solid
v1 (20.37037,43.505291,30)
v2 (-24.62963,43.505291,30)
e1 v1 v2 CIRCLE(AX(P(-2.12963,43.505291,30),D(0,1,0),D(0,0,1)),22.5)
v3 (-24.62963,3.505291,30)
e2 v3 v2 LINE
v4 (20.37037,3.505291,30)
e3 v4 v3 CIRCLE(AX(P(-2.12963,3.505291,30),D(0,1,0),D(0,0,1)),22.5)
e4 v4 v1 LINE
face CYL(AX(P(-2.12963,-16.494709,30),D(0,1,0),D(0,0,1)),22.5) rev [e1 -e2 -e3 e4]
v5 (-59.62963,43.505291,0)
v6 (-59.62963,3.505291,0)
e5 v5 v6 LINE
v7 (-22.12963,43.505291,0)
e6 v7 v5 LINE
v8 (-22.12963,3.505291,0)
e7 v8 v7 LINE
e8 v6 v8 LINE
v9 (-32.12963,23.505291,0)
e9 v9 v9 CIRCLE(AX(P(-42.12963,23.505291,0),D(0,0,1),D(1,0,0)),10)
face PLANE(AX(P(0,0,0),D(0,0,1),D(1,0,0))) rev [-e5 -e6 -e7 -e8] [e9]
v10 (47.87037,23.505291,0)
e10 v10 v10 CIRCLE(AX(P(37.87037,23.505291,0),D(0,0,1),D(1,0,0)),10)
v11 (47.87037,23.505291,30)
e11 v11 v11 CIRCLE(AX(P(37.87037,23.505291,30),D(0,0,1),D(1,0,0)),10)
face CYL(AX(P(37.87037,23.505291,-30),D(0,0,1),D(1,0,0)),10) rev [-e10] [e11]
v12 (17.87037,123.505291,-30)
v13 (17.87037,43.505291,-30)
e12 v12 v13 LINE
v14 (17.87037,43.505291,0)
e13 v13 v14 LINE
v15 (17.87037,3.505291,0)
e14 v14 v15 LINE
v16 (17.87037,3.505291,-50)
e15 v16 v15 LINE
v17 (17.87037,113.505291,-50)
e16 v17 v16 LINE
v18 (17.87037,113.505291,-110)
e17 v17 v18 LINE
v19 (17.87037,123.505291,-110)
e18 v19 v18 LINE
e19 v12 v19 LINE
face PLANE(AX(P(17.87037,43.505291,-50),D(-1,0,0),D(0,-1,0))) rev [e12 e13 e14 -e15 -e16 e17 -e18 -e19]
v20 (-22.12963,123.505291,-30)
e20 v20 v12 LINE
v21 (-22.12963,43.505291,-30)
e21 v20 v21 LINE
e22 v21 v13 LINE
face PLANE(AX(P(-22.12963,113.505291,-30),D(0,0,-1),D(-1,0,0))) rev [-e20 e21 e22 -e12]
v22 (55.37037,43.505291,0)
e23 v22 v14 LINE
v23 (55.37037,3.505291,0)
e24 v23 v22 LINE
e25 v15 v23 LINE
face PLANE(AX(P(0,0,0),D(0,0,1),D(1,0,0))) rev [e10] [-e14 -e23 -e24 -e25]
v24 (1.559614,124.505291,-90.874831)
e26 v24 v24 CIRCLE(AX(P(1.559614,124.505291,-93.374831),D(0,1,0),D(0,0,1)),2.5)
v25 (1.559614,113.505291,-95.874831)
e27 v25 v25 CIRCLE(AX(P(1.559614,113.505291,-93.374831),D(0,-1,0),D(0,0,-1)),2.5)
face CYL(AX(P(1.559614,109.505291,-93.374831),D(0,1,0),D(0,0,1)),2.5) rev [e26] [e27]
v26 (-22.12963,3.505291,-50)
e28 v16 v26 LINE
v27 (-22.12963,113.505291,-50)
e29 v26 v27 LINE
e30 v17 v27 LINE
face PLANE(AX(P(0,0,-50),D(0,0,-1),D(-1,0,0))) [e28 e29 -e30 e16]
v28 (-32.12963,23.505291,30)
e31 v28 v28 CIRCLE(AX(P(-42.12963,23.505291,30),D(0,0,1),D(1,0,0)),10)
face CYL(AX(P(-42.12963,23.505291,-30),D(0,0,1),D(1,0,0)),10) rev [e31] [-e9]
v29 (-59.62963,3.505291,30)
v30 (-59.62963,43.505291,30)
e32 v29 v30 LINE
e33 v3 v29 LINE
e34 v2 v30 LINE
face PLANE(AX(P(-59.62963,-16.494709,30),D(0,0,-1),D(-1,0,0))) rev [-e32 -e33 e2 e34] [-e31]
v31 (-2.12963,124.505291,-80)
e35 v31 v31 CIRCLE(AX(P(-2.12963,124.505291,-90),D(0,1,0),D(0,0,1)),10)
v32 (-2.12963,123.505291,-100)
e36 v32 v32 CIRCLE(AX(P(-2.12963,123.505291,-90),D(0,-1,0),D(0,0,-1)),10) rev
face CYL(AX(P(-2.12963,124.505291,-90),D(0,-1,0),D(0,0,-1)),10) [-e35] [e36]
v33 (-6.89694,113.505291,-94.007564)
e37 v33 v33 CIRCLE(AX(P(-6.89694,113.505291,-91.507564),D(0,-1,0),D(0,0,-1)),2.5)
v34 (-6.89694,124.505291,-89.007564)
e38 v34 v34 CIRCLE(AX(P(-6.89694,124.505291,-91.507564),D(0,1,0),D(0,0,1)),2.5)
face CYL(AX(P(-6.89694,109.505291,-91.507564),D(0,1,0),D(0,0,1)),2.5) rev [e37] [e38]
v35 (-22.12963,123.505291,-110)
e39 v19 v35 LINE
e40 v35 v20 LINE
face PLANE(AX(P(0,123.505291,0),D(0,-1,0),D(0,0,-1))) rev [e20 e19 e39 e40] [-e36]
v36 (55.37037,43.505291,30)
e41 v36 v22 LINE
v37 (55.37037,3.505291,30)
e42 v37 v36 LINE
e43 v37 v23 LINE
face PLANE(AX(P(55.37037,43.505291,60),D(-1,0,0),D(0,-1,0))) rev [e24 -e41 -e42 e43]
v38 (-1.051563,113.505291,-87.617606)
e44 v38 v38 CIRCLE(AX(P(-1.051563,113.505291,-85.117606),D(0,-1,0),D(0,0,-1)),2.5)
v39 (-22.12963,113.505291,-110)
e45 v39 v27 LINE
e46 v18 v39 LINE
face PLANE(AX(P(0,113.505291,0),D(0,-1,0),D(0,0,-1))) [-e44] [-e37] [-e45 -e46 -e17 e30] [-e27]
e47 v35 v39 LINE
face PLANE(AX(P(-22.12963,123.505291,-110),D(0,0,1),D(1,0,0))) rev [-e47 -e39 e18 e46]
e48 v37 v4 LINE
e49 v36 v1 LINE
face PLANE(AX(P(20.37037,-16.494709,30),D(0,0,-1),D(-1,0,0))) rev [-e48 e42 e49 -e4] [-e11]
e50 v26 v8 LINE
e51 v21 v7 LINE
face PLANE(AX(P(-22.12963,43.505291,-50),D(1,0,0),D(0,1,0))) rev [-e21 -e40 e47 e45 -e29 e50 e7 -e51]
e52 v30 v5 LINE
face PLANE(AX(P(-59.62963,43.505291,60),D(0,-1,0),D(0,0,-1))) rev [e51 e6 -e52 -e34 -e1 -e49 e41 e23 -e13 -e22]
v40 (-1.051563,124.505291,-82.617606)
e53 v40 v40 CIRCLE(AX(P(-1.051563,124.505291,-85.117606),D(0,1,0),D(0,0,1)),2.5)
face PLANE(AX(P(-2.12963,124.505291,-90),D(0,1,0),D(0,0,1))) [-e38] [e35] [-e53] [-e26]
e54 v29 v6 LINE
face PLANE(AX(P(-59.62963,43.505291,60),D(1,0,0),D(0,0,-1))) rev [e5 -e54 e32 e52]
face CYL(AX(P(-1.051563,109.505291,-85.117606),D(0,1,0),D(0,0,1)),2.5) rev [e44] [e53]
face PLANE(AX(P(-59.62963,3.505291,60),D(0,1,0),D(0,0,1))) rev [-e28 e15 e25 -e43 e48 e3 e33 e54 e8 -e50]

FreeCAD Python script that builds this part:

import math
import FreeCAD as App
import Part
import Sketcher
from FreeCAD import Vector


def add_polygon(sketch, points):
    """Adds a closed chain of lines whose ends are joined by coincident constraints."""
    first, n = sketch.GeometryCount, len(points)
    for a, b in zip(points, points[1:] + points[:1]):
        sketch.addGeometry(Part.LineSegment(App.Vector(*a, 0), App.Vector(*b, 0)), False)
    for i in range(n):
        sketch.addConstraint(Sketcher.Constraint("Coincident", first + i, 2, first + (i + 1) % n, 1))

doc = App.newDocument("Part")
body = doc.addObject("PartDesign::Body", "Body")

sketch1 = body.newObject("Sketcher::SketchObject", "Sketch")
sketch1.AttachmentSupport = (doc.getObject("XY_Plane"), [""])
sketch1.MapMode = "FlatFace"
add_polygon(sketch1, [(-60, 44), (-60, 4), (55, 4), (55, 44)])
sketch1.addConstraint(Sketcher.Constraint("Vertical", 0))
sketch1.addConstraint(Sketcher.Constraint("Horizontal", 1))
sketch1.addConstraint(Sketcher.Constraint("Vertical", 2))
sketch1.addConstraint(Sketcher.Constraint("Horizontal", 3))
sketch1.addConstraint(Sketcher.Constraint("DistanceX", 1, 1, 1, 2, 115.0))
sketch1.addConstraint(Sketcher.Constraint("DistanceY", 0, 2, 0, 1, 40.0))
sketch1.addConstraint(Sketcher.Constraint("DistanceX", 0, 2, -1, 1, 59.62963))
sketch1.addConstraint(Sketcher.Constraint("DistanceY", -1, 1, 0, 2, 3.505291))
pad1 = body.newObject("PartDesign::Pad", "Pad")
pad1.Profile = sketch1
pad1.Length = 60

sketch2 = body.newObject("Sketcher::SketchObject", "Sketch001")
sketch2.AttachmentSupport = (doc.getObject("XZ_Plane"), [""])
sketch2.MapMode = "FlatFace"
sketch2.AttachmentOffset = App.Placement(Vector(0, 0, -43.505291), App.Rotation())
sketch2.addGeometry(Part.LineSegment(Vector(-25, 30, 0), Vector(-60, 30, 0)), False)
sketch2.addGeometry(Part.LineSegment(Vector(-60, 30, 0), Vector(-60, 60, 0)), False)
sketch2.addGeometry(Part.LineSegment(Vector(-60, 60, 0), Vector(55, 60, 0)), False)
sketch2.addGeometry(Part.LineSegment(Vector(55, 60, 0), Vector(55, 30, 0)), False)
sketch2.addGeometry(Part.LineSegment(Vector(55, 30, 0), Vector(20, 30, 0)), False)
sketch2.addGeometry(Part.ArcOfCircle(Part.Circle(Vector(-2, 30, 0), Vector(0, 0, 1), 22), math.radians(180), math.radians(360)), False)
sketch2.addConstraint(Sketcher.Constraint("Coincident", 0, 2, 1, 1))
sketch2.addConstraint(Sketcher.Constraint("Coincident", 1, 2, 2, 1))
sketch2.addConstraint(Sketcher.Constraint("Coincident", 2, 2, 3, 1))
sketch2.addConstraint(Sketcher.Constraint("Coincident", 3, 2, 4, 1))
sketch2.addConstraint(Sketcher.Constraint("Coincident", 4, 2, 5, 2))
sketch2.addConstraint(Sketcher.Constraint("Coincident", 5, 1, 0, 1))
sketch2.addConstraint(Sketcher.Constraint("Horizontal", 0))
sketch2.addConstraint(Sketcher.Constraint("Vertical", 1))
sketch2.addConstraint(Sketcher.Constraint("Horizontal", 2))
sketch2.addConstraint(Sketcher.Constraint("Vertical", 3))
sketch2.addConstraint(Sketcher.Constraint("Horizontal", 4))
sketch2.addConstraint(Sketcher.Constraint("Horizontal", 5, 3, 0, 2))
sketch2.addConstraint(Sketcher.Constraint("Horizontal", 0, 2, 3, 2))
sketch2.addConstraint(Sketcher.Constraint("Equal", 0, 4))
sketch2.addConstraint(Sketcher.Constraint("Radius", 5, 22.5))
sketch2.addConstraint(Sketcher.Constraint("DistanceX", 0, 2, 0, 1, 35.0))
sketch2.addConstraint(Sketcher.Constraint("DistanceY", 1, 1, 1, 2, 30.0))
sketch2.addConstraint(Sketcher.Constraint("DistanceY", -1, 1, 5, 3, 30.0))
sketch2.addConstraint(Sketcher.Constraint("DistanceX", 5, 3, -1, 1, 2.12963))
pocket1 = body.newObject("PartDesign::Pocket", "Pocket")
pocket1.Profile = sketch2
pocket1.Length = 60
pocket1.Reversed = True

sketch3 = body.newObject("Sketcher::SketchObject", "Sketch002")
sketch3.AttachmentSupport = (doc.getObject("XY_Plane"), [""])
sketch3.MapMode = "FlatFace"
sketch3.AttachmentOffset = App.Placement(Vector(0, 0, 30), App.Rotation())
sketch3.addGeometry(Part.Circle(Vector(-42, 24, 0), Vector(0, 0, 1), 10), False)
sketch3.addGeometry(Part.Circle(Vector(38, 24, 0), Vector(0, 0, 1), 10), False)
sketch3.addConstraint(Sketcher.Constraint("Equal", 0, 1))
sketch3.addConstraint(Sketcher.Constraint("Horizontal", 0, 3, 1, 3))
sketch3.addConstraint(Sketcher.Constraint("Diameter", 0, 20.0))
sketch3.addConstraint(Sketcher.Constraint("DistanceX", 0, 3, 1, 3, 80.0))
sketch3.addConstraint(Sketcher.Constraint("DistanceX", 0, 3, -1, 1, 42.12963))
sketch3.addConstraint(Sketcher.Constraint("DistanceY", -1, 1, 0, 3, 23.505291))
pocket2 = body.newObject("PartDesign::Pocket", "Pocket001")
pocket2.Profile = sketch3
pocket2.Length = 60

sketch4 = body.newObject("Sketcher::SketchObject", "Sketch003")
sketch4.AttachmentSupport = (doc.getObject("XY_Plane"), [""])
sketch4.MapMode = "FlatFace"
add_polygon(sketch4, [(18, 44), (18, 4), (-22, 4), (-22, 44)])
sketch4.addConstraint(Sketcher.Constraint("Vertical", 0))
sketch4.addConstraint(Sketcher.Constraint("Horizontal", 1))
sketch4.addConstraint(Sketcher.Constraint("Vertical", 2))
sketch4.addConstraint(Sketcher.Constraint("Horizontal", 3))
sketch4.addConstraint(Sketcher.Constraint("Equal", 3, 0))
sketch4.addConstraint(Sketcher.Constraint("DistanceX", 1, 2, 1, 1, 40.0))
sketch4.addConstraint(Sketcher.Constraint("DistanceX", -1, 1, 0, 2, 17.87037))
sketch4.addConstraint(Sketcher.Constraint("DistanceY", -1, 1, 0, 2, 3.505291))
pad2 = body.newObject("PartDesign::Pad", "Pad001")
pad2.Profile = sketch4
pad2.Length = 50
pad2.Reversed = True

sketch5 = body.newObject("Sketcher::SketchObject", "Sketch004")
sketch5.AttachmentSupport = (doc.getObject("XZ_Plane"), [""])
sketch5.MapMode = "FlatFace"
sketch5.AttachmentOffset = App.Placement(Vector(0, 0, -43.505291), App.Rotation())
add_polygon(sketch5, [(-22, -50), (-22, -30), (18, -30), (18, -50)])
sketch5.addConstraint(Sketcher.Constraint("Vertical", 0))
sketch5.addConstraint(Sketcher.Constraint("Horizontal", 1))
sketch5.addConstraint(Sketcher.Constraint("Vertical", 2))
sketch5.addConstraint(Sketcher.Constraint("Horizontal", 3))
sketch5.addConstraint(Sketcher.Constraint("DistanceX", 1, 1, 1, 2, 40.0))
sketch5.addConstraint(Sketcher.Constraint("DistanceY", 0, 1, 0, 2, 20.0))
sketch5.addConstraint(Sketcher.Constraint("DistanceY", 0, 2, -1, 1, 30.0))
sketch5.addConstraint(Sketcher.Constraint("DistanceX", 0, 2, -1, 1, 22.12963))
pad3 = body.newObject("PartDesign::Pad", "Pad002")
pad3.Profile = sketch5
pad3.Length = 70
pad3.Reversed = True

sketch6 = body.newObject("Sketcher::SketchObject", "Sketch005")
sketch6.AttachmentSupport = (doc.getObject("XZ_Plane"), [""])
sketch6.MapMode = "FlatFace"
sketch6.AttachmentOffset = App.Placement(Vector(0, 0, -113.505291), App.Rotation())
add_polygon(sketch6, [(-22, -110), (-22, -30), (18, -30), (18, -110)])
sketch6.addConstraint(Sketcher.Constraint("Vertical", 0))
sketch6.addConstraint(Sketcher.Constraint("Horizontal", 1))
sketch6.addConstraint(Sketcher.Constraint("Vertical", 2))
sketch6.addConstraint(Sketcher.Constraint("Horizontal", 3))
sketch6.addConstraint(Sketcher.Constraint("DistanceX", 1, 1, 1, 2, 40.0))
sketch6.addConstraint(Sketcher.Constraint("DistanceY", 0, 1, 0, 2, 80.0))
sketch6.addConstraint(Sketcher.Constraint("DistanceY", 0, 2, -1, 1, 30.0))
sketch6.addConstraint(Sketcher.Constraint("DistanceX", 0, 2, -1, 1, 22.12963))
pad4 = body.newObject("PartDesign::Pad", "Pad003")
pad4.Profile = sketch6
pad4.Length = 10
pad4.Reversed = True

sketch7 = body.newObject("Sketcher::SketchObject", "Sketch006")
sketch7.AttachmentSupport = (doc.getObject("XZ_Plane"), [""])
sketch7.MapMode = "FlatFace"
sketch7.AttachmentOffset = App.Placement(Vector(0, 0, -123.505291), App.Rotation())
sketch7.addGeometry(Part.Circle(Vector(-2, -90, 0), Vector(0, 0, 1), 10), False)
sketch7.addConstraint(Sketcher.Constraint("Diameter", 0, 20.0))
sketch7.addConstraint(Sketcher.Constraint("DistanceY", 0, 3, -1, 1, 90.0))
sketch7.addConstraint(Sketcher.Constraint("DistanceX", 0, 3, -1, 1, 2.12963))
pad5 = body.newObject("PartDesign::Pad", "Pad004")
pad5.Profile = sketch7
pad5.Length = 1
pad5.Reversed = True

sketch8 = body.newObject("Sketcher::SketchObject", "Sketch007")
sketch8.AttachmentSupport = (doc.getObject("XZ_Plane"), [""])
sketch8.MapMode = "FlatFace"
sketch8.AttachmentOffset = App.Placement(Vector(0, 0, -124.505291), App.Rotation())
sketch8.addGeometry(Part.Circle(Vector(-6.9, -91.5, 0), Vector(0, 0, 1), 2.5), False)
sketch8.addGeometry(Part.Circle(Vector(1.6, -93.4, 0), Vector(0, 0, 1), 2.5), False)
sketch8.addGeometry(Part.Circle(Vector(-1.1, -85.1, 0), Vector(0, 0, 1), 2.5), False)
sketch8.addConstraint(Sketcher.Constraint("Equal", 0, 1))
sketch8.addConstraint(Sketcher.Constraint("Equal", 1, 2))
sketch8.addConstraint(Sketcher.Constraint("Diameter", 0, 5.0))
sketch8.addConstraint(Sketcher.Constraint("DistanceX", 0, 3, -1, 1, 6.89694))
sketch8.addConstraint(Sketcher.Constraint("DistanceY", 1, 3, -1, 1, 93.374831))
sketch8.addConstraint(Sketcher.Constraint("DistanceY", 0, 3, -1, 1, 91.507564))
sketch8.addConstraint(Sketcher.Constraint("DistanceX", -1, 1, 1, 3, 1.559614))
sketch8.addConstraint(Sketcher.Constraint("DistanceX", 2, 3, -1, 1, 1.051563))
sketch8.addConstraint(Sketcher.Constraint("DistanceY", 2, 3, -1, 1, 85.117606))
pocket3 = body.newObject("PartDesign::Pocket", "Pocket002")
pocket3.Profile = sketch8
pocket3.Length = 15
pocket3.Reversed = True

doc.recompute()
